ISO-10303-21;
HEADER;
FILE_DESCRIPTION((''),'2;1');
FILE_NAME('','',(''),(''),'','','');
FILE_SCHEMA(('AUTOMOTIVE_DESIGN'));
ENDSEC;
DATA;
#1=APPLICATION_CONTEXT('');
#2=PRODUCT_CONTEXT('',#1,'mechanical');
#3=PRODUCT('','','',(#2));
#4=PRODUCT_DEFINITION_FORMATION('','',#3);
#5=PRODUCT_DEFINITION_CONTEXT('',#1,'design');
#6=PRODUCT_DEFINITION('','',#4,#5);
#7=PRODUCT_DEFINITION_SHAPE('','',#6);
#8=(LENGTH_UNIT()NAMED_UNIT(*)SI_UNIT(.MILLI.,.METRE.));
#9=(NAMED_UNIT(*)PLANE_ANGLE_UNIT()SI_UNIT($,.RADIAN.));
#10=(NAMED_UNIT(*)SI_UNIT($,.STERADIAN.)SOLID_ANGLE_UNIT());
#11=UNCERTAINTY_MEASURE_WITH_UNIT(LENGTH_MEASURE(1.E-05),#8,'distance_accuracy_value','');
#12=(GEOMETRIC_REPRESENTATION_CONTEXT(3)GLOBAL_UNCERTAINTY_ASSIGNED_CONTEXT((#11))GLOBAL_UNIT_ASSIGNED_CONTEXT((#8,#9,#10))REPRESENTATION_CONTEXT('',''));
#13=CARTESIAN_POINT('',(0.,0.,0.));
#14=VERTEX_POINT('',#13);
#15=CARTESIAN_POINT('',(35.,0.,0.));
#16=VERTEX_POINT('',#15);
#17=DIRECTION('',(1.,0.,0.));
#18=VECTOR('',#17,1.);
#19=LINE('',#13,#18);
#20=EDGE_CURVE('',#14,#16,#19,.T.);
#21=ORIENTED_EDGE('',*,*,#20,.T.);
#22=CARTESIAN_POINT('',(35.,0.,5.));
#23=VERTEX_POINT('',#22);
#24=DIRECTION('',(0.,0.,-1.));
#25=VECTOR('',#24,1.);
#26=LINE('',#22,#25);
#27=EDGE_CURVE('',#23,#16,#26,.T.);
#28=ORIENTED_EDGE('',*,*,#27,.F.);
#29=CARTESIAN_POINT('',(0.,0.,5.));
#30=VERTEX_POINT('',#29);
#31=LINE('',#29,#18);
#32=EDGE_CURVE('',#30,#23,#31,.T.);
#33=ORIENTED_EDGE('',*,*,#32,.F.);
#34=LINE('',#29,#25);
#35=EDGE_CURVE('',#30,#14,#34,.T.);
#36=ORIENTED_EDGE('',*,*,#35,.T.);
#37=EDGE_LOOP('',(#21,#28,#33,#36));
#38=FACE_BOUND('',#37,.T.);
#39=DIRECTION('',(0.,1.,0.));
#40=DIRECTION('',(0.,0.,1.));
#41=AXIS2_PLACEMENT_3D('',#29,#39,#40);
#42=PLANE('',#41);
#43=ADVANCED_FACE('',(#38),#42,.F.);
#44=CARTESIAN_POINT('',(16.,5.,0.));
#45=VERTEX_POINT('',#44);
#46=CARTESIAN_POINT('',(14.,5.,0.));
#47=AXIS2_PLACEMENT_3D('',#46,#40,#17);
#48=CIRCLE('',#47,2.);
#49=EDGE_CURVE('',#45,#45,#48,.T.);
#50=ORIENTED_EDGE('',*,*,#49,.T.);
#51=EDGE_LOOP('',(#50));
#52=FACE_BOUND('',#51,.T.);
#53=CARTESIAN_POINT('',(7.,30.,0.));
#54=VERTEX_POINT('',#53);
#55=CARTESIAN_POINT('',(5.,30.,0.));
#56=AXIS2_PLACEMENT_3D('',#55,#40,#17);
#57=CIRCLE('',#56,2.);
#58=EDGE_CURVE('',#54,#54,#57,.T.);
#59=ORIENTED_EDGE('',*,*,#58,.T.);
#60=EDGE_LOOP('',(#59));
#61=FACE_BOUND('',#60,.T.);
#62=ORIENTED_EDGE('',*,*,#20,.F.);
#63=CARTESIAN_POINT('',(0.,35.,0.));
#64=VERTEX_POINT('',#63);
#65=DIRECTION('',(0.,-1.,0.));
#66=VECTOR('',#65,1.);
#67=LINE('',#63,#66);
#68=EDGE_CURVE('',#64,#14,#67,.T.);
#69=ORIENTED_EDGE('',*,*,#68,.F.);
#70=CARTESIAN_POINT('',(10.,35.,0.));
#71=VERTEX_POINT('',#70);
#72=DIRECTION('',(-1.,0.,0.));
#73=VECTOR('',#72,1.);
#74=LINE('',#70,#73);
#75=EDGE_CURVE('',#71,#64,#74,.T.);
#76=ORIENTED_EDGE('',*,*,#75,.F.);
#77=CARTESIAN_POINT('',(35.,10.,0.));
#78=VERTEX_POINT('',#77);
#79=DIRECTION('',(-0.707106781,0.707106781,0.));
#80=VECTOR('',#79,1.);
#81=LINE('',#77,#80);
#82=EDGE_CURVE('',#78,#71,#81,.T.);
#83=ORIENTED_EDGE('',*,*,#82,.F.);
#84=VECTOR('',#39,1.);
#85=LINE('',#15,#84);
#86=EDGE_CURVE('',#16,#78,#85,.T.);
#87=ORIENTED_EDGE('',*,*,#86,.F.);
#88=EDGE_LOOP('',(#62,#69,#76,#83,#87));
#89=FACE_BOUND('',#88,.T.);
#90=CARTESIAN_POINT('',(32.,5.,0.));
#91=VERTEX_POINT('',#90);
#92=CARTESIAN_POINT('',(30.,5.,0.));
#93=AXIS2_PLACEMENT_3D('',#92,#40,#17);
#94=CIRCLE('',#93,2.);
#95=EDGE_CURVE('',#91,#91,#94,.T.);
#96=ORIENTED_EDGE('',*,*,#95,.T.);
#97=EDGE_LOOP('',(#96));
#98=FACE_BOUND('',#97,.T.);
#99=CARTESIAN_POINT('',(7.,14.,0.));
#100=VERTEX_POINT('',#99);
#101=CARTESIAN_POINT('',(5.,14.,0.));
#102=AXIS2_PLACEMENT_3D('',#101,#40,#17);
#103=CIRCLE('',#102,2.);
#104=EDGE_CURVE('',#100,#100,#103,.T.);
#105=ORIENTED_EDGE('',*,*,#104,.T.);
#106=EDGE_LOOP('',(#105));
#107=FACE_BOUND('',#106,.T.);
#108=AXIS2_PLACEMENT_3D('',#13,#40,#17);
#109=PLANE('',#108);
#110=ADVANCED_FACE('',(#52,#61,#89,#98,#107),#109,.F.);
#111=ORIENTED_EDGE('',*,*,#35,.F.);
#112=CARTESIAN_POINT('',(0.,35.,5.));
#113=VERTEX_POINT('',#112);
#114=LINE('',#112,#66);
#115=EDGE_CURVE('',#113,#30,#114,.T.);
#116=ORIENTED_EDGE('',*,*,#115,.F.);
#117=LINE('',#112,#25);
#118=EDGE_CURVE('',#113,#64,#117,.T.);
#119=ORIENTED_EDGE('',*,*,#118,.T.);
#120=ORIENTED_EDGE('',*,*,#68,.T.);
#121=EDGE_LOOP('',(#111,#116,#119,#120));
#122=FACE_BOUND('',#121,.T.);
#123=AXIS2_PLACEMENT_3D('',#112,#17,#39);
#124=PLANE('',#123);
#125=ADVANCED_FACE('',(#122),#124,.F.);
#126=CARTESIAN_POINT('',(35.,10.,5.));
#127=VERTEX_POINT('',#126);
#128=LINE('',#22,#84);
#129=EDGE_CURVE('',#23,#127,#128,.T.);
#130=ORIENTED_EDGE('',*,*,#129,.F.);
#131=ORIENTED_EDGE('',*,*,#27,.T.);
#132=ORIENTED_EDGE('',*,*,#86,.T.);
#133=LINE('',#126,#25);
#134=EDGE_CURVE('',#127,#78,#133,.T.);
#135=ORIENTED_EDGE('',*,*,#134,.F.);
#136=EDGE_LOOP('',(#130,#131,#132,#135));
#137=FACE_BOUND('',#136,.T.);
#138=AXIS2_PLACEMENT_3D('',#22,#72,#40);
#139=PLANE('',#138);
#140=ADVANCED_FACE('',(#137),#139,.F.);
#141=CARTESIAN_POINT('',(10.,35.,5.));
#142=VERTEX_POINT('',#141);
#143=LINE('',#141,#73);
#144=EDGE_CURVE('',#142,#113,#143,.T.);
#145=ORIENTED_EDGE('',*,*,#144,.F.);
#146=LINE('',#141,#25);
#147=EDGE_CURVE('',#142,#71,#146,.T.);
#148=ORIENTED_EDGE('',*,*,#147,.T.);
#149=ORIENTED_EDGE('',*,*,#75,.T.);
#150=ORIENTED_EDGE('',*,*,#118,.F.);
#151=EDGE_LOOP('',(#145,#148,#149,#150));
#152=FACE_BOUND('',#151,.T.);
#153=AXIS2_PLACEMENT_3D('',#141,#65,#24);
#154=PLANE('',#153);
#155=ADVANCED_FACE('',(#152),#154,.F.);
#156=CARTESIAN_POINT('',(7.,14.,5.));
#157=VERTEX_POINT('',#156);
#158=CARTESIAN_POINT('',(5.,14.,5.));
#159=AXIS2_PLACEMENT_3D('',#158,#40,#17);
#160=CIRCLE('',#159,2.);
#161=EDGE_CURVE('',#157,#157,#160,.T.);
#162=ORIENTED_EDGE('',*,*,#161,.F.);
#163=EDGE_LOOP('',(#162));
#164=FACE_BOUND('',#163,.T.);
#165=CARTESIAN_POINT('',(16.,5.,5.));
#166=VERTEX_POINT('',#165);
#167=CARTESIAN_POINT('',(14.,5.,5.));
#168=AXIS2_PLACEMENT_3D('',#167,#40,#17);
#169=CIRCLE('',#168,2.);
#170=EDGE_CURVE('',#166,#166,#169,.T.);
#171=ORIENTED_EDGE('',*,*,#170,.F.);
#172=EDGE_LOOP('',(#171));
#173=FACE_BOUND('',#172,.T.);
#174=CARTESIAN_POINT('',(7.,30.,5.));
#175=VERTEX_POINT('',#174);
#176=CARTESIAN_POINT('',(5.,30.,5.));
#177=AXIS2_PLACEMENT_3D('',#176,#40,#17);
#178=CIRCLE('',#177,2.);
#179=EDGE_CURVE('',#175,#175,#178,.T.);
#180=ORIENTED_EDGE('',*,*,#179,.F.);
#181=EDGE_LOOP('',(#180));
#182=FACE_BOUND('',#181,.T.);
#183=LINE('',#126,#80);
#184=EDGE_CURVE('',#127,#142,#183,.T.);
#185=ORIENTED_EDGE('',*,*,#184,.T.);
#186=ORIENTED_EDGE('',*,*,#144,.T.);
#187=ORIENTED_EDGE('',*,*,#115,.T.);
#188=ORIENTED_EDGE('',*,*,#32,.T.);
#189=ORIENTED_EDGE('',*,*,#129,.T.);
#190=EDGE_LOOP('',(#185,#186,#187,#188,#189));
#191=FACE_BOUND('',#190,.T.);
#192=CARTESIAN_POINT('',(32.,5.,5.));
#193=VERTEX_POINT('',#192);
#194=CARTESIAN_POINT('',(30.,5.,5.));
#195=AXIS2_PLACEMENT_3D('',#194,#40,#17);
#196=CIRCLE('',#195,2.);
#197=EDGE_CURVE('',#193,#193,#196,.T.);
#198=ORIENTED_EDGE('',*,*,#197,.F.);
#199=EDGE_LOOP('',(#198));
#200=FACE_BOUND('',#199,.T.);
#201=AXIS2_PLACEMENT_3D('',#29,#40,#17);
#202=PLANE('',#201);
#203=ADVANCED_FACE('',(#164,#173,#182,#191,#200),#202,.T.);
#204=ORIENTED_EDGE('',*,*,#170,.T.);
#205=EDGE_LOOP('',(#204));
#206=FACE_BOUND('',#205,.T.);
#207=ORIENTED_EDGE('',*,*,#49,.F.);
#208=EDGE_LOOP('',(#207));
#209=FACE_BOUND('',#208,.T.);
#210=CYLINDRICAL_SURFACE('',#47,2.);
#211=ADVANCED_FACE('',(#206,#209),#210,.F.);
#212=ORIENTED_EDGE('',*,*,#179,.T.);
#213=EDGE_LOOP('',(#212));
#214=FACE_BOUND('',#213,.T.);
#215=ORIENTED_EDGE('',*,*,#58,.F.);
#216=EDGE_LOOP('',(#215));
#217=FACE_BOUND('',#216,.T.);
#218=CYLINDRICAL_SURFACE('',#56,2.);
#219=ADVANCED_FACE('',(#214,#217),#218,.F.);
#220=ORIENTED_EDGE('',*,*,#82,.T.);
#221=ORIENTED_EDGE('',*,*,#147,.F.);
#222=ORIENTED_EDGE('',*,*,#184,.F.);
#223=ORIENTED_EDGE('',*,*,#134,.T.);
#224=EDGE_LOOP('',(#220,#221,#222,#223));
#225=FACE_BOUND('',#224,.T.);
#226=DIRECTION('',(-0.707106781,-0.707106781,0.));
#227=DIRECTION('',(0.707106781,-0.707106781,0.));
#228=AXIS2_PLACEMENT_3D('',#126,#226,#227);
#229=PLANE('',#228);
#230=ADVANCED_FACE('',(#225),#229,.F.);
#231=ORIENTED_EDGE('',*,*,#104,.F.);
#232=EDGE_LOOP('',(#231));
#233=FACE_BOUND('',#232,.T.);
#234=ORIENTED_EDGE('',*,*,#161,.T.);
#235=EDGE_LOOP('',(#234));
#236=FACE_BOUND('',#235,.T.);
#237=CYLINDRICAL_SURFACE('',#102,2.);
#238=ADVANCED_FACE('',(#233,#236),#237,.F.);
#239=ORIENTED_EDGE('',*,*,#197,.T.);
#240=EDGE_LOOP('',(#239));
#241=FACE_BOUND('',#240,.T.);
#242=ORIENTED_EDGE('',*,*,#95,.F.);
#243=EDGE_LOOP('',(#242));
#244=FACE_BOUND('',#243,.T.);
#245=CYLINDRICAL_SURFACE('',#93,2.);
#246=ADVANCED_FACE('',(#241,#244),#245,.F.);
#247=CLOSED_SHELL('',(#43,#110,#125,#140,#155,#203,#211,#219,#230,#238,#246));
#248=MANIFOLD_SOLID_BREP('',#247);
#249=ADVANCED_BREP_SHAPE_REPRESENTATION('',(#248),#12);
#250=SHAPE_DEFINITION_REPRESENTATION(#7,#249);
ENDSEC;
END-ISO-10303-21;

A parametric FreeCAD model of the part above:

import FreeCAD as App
import Part
import Sketcher

V = App.Vector


def add_polygon(sketch, points):
    """Adds a closed chain of lines whose ends are joined by coincident constraints."""
    first, n = sketch.GeometryCount, len(points)
    for a, b in zip(points, points[1:] + points[:1]):
        sketch.addGeometry(Part.LineSegment(App.Vector(*a, 0), App.Vector(*b, 0)), False)
    for i in range(n):
        sketch.addConstraint(Sketcher.Constraint("Coincident", first + i, 2, first + (i + 1) % n, 1))

doc = App.newDocument("Part")
body = doc.addObject("PartDesign::Body", "Body")

sketch1 = body.newObject("Sketcher::SketchObject", "Sketch")
sketch1.AttachmentSupport = (doc.getObject("XY_Plane"), [""])
sketch1.MapMode = "FlatFace"
add_polygon(sketch1, [(0, 0), (35, 0), (35, 10), (10, 35), (0, 35)])
sketch1.addConstraint(Sketcher.Constraint("Horizontal", 0))
sketch1.addConstraint(Sketcher.Constraint("Vertical", 1))
sketch1.addConstraint(Sketcher.Constraint("Horizontal", 3))
sketch1.addConstraint(Sketcher.Constraint("Vertical", 4))
sketch1.addConstraint(Sketcher.Constraint("Coincident", 4, 2, -1, 1))
sketch1.addConstraint(Sketcher.Constraint("Equal", 3, 1))
sketch1.addConstraint(Sketcher.Constraint("Equal", 0, 4))
sketch1.addConstraint(Sketcher.Constraint("DistanceX", 0, 1, 0, 2, 35.0))
sketch1.addConstraint(Sketcher.Constraint("DistanceX", 3, 2, 3, 1, 10.0))
pad1 = body.newObject("PartDesign::Pad", "Pad")
pad1.Profile = sketch1
pad1.Length = 5

sketch2 = body.newObject("Sketcher::SketchObject", "Sketch001")
sketch2.AttachmentSupport = (doc.getObject("XY_Plane"), [""])
sketch2.MapMode = "FlatFace"
sketch2.AttachmentOffset = App.Placement(V(0, 0, 5), App.Rotation())
sketch2.addGeometry(Part.Circle(V(14, 5, 0), V(0, 0, 1), 2), False)
sketch2.addGeometry(Part.Circle(V(30, 5, 0), V(0, 0, 1), 2), False)
sketch2.addGeometry(Part.Circle(V(5, 30, 0), V(0, 0, 1), 2), False)
sketch2.addGeometry(Part.Circle(V(5, 14, 0), V(0, 0, 1), 2), False)
sketch2.addConstraint(Sketcher.Constraint("Equal", 0, 1))
sketch2.addConstraint(Sketcher.Constraint("Equal", 1, 2))
sketch2.addConstraint(Sketcher.Constraint("Equal", 2, 3))
sketch2.addConstraint(Sketcher.Constraint("Horizontal", 0, 3, 1, 3))
sketch2.addConstraint(Sketcher.Constraint("Vertical", 2, 3, 3, 3))
sketch2.addConstraint(Sketcher.Constraint("Diameter", 0, 4.0))
sketch2.addConstraint(Sketcher.Constraint("DistanceX", -1, 1, 0, 3, 14.0))
sketch2.addConstraint(Sketcher.Constraint("DistanceY", -1, 1, 0, 3, 5.0))
sketch2.addConstraint(Sketcher.Constraint("DistanceX", -1, 1, 1, 3, 30.0))
sketch2.addConstraint(Sketcher.Constraint("DistanceX", -1, 1, 2, 3, 5.0))
sketch2.addConstraint(Sketcher.Constraint("DistanceY", -1, 1, 2, 3, 30.0))
sketch2.addConstraint(Sketcher.Constraint("DistanceY", -1, 1, 3, 3, 14.0))
pocket1 = body.newObject("PartDesign::Pocket", "Pocket")
pocket1.Profile = sketch2
pocket1.Length = 5

doc.recompute()
